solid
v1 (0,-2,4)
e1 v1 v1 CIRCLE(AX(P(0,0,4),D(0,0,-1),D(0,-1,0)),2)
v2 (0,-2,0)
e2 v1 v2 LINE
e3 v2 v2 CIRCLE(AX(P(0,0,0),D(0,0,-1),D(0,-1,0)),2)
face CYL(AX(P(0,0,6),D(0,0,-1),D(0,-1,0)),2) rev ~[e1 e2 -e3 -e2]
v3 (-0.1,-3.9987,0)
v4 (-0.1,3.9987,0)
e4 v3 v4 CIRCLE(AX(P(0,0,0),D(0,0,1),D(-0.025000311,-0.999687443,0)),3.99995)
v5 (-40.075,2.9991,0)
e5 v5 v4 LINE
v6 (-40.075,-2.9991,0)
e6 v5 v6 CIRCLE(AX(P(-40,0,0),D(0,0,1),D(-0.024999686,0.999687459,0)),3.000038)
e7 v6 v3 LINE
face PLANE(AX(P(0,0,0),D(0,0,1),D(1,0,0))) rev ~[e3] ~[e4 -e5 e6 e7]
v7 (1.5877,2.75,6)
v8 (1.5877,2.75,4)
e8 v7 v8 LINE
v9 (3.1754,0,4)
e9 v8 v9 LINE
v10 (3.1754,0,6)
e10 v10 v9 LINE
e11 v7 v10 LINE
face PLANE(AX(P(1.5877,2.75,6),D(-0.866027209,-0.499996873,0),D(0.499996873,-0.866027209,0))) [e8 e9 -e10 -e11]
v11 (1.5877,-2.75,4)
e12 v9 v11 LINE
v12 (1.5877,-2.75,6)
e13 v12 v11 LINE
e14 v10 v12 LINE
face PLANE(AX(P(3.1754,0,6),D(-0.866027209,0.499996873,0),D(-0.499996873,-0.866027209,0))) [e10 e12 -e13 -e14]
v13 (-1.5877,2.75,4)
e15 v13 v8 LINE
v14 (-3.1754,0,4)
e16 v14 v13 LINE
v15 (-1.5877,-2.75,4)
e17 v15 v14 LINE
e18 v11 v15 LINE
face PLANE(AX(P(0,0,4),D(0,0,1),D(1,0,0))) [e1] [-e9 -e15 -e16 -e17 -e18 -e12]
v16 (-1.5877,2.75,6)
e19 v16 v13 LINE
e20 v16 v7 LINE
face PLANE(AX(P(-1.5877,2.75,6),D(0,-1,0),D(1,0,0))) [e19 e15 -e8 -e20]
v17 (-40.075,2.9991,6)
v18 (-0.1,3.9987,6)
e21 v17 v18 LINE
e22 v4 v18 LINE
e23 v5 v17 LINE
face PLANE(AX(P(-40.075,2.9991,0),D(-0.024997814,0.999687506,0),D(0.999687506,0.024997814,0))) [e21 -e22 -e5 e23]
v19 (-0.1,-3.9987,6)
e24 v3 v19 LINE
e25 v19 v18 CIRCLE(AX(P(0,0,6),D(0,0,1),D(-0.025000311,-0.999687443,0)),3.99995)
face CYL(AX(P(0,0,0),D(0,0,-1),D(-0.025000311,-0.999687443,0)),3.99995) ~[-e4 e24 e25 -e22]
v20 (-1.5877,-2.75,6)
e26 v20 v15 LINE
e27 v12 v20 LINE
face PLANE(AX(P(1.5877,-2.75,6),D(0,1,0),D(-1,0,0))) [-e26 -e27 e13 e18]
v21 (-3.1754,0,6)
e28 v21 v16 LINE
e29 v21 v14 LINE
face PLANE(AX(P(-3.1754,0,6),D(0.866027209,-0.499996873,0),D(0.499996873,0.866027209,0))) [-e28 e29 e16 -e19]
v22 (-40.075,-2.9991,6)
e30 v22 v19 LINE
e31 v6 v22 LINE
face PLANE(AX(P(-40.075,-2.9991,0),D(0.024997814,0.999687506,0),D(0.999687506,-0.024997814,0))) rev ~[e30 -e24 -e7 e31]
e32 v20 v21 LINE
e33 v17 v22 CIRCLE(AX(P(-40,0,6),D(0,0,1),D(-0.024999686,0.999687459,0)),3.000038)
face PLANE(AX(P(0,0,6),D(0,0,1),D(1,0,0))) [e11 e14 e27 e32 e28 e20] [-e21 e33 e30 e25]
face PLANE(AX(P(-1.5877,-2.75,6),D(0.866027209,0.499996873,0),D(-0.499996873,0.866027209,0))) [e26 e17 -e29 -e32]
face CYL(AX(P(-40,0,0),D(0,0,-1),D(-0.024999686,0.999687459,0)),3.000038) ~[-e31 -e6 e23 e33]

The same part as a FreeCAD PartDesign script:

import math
import FreeCAD as App
import Part
import Sketcher

V = App.Vector
Q = App.Units.Quantity

doc = App.newDocument("Part")
params = doc.addObject("Spreadsheet::Sheet", "Params")
for row, (alias, value) in enumerate([
    ("sketch1_radius", "4 mm"),
    ("sketch1_radius2", "3 mm"),
    ("pad1_length", "6 mm"),
    ("sketch2_diameter", "4 mm"),
    ("hole_diameter", "4 mm"),
    ("hole_depth", "11.75 mm"),
    ("pocket1_length", "2 mm"),
], start=1):
    params.set(f"A{row}", alias)
    params.set(f"B{row}", "=" + value)
    params.setAlias(f"B{row}", alias)

body = doc.addObject("PartDesign::Body", "Body")

# Sketch on XY plane
sketch1 = doc.addObject("Sketcher::SketchObject", "Sketch")
body.addObject(sketch1)
sketch1.AttachmentSupport = (doc.XY_Plane, [""])
sketch1.MapMode = "FlatFace"
sketch1.addGeometry([
    Part.LineSegment(V(-40.1, -3, 0), V(-0.1, -4, 0)),
    Part.ArcOfCircle(Part.Circle(V(0, 0, 0), V(0, 0, 1), 4), math.radians(-91), math.radians(91)),
    Part.LineSegment(V(-0.1, 4, 0), V(-40.1, 3, 0)),
    Part.ArcOfCircle(Part.Circle(V(-40, 0, 0), V(0, 0, 1), 3), math.radians(91), math.radians(269)),
], False)
sketch1.addConstraint([
    Sketcher.Constraint("Tangent", 0, 2, 1, 1),
    Sketcher.Constraint("Tangent", 1, 2, 2, 1),
    Sketcher.Constraint("Tangent", 2, 2, 3, 1),
    Sketcher.Constraint("Tangent", 3, 2, 0, 1),
    Sketcher.Constraint("Coincident", 1, 3, -1, 1),
    Sketcher.Constraint("PointOnObject", 3, 3, -1),
    Sketcher.Constraint("Radius", 1, 4.0),
    Sketcher.Constraint("Radius", 3, 3.0),
    Sketcher.Constraint("DistanceX", 3, 3, -1, 1, 40.0),
])
sketch1.setExpression("Constraints[6]", "Params.sketch1_radius")
sketch1.setExpression("Constraints[7]", "Params.sketch1_radius2")
pad1 = doc.addObject("PartDesign::Pad", "Pad")
body.addObject(pad1)
pad1.Profile = sketch1
pad1.setExpression("Length", "Params.pad1_length")

# Sketch on XY plane
sketch2 = doc.addObject("Sketcher::SketchObject", "Sketch001")
body.addObject(sketch2)
sketch2.AttachmentSupport = (doc.XY_Plane, [""])
sketch2.MapMode = "FlatFace"
sketch2.AttachmentOffset = App.Placement(V(0, 0, 6), App.Rotation())
sketch2.addGeometry(Part.Circle(V(0, 0, 0), V(0, 0, 1), 2), False)
sketch2.addConstraint([
    Sketcher.Constraint("Coincident", 0, 3, -1, 1),
    Sketcher.Constraint("Diameter", 0, 4.0),
])
sketch2.setExpression("Constraints[1]", "Params.sketch2_diameter")
doc.recompute()
hole = doc.addObject("PartDesign::Hole", "Hole")
body.addObject(hole)
hole.Profile = sketch2
hole.ThreadType = "None"
hole.setExpression("Diameter", "Params.hole_diameter")
hole.DepthType = "Dimension"
hole.setExpression("Depth", "Params.hole_depth")
hole.DrillPoint = "Angled"
hole.DrillPointAngle = 118

# Sketch on XY plane
sketch3 = doc.addObject("Sketcher::SketchObject", "Sketch002")
body.addObject(sketch3)
sketch3.AttachmentSupport = (doc.XY_Plane, [""])
sketch3.MapMode = "FlatFace"
sketch3.AttachmentOffset = App.Placement(V(0, 0, 6), App.Rotation())
sketch3.addGeometry([
    Part.LineSegment(V(1.6, 2.8, 0), V(-1.6, 2.8, 0)),  # 0
    Part.LineSegment(V(-1.6, 2.8, 0), V(-3.2, 0, 0)),  # 1
    Part.LineSegment(V(-3.2, 0, 0), V(-1.6, -2.8, 0)),  # 2
    Part.LineSegment(V(-1.6, -2.8, 0), V(1.6, -2.8, 0)),  # 3
    Part.LineSegment(V(1.6, -2.8, 0), V(3.2, 0, 0)),  # 4
    Part.LineSegment(V(3.2, 0, 0), V(1.6, 2.8, 0)),  # 5
], False)
sketch3.addConstraint([
    Sketcher.Constraint("Coincident", 0, 2, 1, 1),
    Sketcher.Constraint("Coincident", 1, 2, 2, 1),
    Sketcher.Constraint("Coincident", 2, 2, 3, 1),
    Sketcher.Constraint("Coincident", 3, 2, 4, 1),
    Sketcher.Constraint("Coincident", 4, 2, 5, 1),
    Sketcher.Constraint("Coincident", 5, 2, 0, 1),
    Sketcher.Constraint("Horizontal", 0),
    Sketcher.Constraint("Horizontal", 3),
    Sketcher.Constraint("Symmetric", 0, 2, 3, 2, -1, 1),
    Sketcher.Constraint("Symmetric", 1, 2, 4, 2, -1, 1),
    Sketcher.Constraint("PointOnObject", 1, 2, -1),
    Sketcher.Constraint("Parallel", 2, 5),
    Sketcher.Constraint("Vertical", 0, 2, 2, 2),
    Sketcher.Constraint("DistanceY", 2, 2, 0, 2, 5.5),
    Sketcher.Constraint("Angle", 1, Q("-119.9998 deg")),
    Sketcher.Constraint("DistanceX", 0, 2, 0, 1, 3.1754),
])
pocket1 = doc.addObject("PartDesign::Pocket", "Pocket")
body.addObject(pocket1)
pocket1.Profile = sketch3
pocket1.setExpression("Length", "Params.pocket1_length")

doc.recompute()
